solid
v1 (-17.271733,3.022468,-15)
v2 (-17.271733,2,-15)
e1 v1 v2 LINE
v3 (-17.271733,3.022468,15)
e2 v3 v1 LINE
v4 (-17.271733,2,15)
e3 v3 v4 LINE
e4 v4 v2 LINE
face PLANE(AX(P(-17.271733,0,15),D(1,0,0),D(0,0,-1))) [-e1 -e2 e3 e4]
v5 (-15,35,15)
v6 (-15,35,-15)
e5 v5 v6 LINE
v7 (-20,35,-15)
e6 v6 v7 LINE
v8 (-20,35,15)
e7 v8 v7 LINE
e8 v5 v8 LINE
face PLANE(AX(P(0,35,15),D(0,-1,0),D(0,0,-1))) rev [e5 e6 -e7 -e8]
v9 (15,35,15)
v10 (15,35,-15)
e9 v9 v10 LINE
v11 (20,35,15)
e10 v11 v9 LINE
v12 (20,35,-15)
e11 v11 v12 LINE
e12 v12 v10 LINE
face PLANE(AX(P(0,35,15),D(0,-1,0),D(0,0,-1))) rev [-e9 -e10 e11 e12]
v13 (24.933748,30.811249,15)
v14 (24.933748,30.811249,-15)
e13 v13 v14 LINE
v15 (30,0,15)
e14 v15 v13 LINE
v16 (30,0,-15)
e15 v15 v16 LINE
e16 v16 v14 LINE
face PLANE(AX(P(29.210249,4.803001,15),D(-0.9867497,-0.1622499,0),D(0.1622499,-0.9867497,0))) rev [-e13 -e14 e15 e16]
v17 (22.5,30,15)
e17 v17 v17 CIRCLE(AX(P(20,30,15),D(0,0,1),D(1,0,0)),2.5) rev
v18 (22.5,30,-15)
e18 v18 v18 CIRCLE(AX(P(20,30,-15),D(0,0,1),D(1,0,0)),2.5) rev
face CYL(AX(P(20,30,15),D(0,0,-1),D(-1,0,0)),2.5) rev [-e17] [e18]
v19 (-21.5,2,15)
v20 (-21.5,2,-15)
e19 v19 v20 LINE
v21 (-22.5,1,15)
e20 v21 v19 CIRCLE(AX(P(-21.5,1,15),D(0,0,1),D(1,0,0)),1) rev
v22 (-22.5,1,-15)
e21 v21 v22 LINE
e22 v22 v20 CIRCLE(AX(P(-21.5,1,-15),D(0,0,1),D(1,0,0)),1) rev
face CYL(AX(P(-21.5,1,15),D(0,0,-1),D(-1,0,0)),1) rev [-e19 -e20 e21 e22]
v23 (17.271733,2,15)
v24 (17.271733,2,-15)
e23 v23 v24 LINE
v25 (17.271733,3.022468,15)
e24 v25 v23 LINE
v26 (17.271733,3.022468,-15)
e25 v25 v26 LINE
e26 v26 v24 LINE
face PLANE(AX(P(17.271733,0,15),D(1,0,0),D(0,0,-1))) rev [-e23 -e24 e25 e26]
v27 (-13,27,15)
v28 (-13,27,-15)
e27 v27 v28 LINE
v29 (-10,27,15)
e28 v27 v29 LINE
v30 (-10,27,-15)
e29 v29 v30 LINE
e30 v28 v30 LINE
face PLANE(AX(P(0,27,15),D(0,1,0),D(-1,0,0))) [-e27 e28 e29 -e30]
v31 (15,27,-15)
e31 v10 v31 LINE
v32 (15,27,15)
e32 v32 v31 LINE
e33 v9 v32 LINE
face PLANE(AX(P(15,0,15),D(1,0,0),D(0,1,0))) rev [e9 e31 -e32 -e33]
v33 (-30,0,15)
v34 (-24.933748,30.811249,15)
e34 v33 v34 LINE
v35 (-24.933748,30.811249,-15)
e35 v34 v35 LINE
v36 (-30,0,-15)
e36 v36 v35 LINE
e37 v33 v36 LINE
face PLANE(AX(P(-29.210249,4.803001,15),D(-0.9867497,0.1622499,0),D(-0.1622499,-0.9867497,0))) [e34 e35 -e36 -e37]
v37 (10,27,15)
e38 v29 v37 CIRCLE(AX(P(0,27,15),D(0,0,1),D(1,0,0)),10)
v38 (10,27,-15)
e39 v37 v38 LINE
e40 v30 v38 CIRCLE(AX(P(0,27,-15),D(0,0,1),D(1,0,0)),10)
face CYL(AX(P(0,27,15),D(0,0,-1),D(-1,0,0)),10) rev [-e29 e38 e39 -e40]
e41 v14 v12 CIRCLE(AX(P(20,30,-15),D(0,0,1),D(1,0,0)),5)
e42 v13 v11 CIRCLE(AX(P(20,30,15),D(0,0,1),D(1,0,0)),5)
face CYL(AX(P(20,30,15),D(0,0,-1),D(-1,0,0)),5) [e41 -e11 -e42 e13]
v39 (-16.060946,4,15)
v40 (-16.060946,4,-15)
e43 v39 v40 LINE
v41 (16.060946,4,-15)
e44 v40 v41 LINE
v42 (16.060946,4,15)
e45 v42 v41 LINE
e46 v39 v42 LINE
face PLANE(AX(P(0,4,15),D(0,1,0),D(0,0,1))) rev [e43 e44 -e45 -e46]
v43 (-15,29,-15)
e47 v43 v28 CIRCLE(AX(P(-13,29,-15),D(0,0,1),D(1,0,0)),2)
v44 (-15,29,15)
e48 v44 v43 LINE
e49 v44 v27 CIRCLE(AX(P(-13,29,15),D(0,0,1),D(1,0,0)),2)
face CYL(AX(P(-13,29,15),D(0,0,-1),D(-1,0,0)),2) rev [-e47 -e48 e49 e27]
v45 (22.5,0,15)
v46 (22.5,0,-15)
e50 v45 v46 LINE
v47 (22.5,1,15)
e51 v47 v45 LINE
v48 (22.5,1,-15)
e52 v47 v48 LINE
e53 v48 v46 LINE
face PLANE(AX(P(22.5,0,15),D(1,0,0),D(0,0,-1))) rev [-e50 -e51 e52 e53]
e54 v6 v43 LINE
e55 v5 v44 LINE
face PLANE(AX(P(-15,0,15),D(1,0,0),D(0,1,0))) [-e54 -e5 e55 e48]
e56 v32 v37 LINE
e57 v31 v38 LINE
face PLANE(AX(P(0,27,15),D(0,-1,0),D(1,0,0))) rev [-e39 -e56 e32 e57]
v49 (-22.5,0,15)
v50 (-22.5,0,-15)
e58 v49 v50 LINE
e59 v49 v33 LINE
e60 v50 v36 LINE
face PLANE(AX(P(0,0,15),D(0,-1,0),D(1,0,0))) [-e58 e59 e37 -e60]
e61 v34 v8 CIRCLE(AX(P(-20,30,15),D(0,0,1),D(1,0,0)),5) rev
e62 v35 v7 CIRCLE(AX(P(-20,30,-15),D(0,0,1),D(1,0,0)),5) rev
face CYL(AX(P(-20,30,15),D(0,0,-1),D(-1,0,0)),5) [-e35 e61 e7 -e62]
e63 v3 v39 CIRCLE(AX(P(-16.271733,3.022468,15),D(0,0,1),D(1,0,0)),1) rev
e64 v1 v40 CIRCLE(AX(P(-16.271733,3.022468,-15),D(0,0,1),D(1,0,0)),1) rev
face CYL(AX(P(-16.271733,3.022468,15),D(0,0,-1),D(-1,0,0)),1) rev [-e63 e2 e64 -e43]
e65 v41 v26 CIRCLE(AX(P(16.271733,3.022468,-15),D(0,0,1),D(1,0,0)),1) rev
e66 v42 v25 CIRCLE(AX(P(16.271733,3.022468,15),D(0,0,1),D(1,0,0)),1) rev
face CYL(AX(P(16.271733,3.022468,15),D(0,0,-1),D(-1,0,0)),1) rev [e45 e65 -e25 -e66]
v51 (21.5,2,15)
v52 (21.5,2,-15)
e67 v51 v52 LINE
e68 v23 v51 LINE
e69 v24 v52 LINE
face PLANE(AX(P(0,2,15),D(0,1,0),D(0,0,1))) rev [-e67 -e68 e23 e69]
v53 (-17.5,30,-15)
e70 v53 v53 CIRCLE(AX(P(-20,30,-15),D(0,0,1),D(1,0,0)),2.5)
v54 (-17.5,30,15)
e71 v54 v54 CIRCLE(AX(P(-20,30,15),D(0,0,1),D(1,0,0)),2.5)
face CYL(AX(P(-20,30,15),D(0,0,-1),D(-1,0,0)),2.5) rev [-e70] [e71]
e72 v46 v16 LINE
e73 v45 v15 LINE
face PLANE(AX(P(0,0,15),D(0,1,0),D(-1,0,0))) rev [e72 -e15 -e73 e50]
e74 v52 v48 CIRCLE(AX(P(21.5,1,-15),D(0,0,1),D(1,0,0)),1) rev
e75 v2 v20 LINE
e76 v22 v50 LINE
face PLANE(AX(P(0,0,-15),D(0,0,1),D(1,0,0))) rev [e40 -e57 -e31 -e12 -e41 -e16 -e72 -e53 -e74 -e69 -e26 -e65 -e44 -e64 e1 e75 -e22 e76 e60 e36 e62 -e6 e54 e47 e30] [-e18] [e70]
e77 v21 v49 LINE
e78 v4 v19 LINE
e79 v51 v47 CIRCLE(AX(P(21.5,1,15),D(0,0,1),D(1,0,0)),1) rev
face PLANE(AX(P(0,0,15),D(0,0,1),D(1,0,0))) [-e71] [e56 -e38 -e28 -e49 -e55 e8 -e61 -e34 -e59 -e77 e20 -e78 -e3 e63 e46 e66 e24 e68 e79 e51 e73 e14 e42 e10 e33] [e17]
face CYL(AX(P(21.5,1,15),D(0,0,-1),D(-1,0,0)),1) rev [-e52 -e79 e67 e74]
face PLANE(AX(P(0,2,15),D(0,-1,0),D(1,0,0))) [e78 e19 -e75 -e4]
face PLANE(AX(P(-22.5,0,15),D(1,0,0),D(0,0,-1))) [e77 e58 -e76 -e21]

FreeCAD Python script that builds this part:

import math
import FreeCAD as App
import Part
import Sketcher

doc = App.newDocument("Part")
body = doc.addObject("PartDesign::Body", "Body")

# Sketch on XY plane
sketch1 = doc.addObject("Sketcher::SketchObject", "Sketch")
body.addObject(sketch1)
sketch1.AttachmentSupport = (doc.XY_Plane, [""])
sketch1.MapMode = "FlatFace"
sketch1.addGeometry([
    Part.ArcOfCircle(Part.Circle(App.Vector(16.271733, 3.022468, 0), App.Vector(0, 0, 1), 1), math.radians(0), math.radians(102.168484)),  # 0
    Part.LineSegment(App.Vector(17.271733, 3.022468, 0), App.Vector(17.271733, 2, 0)),  # 1
    Part.LineSegment(App.Vector(17.271733, 2, 0), App.Vector(21.5, 2, 0)),  # 2
    Part.ArcOfCircle(Part.Circle(App.Vector(21.5, 1, 0), App.Vector(0, 0, 1), 1), math.radians(0), math.radians(90)),  # 3
    Part.LineSegment(App.Vector(22.5, 1, 0), App.Vector(22.5, 0, 0)),  # 4
    Part.LineSegment(App.Vector(22.5, 0, 0), App.Vector(30, 0, 0)),  # 5
    Part.LineSegment(App.Vector(30, 0, 0), App.Vector(24.933748, 30.811249, 0)),  # 6
    Part.ArcOfCircle(Part.Circle(App.Vector(20, 30, 0), App.Vector(0, 0, 1), 5), math.radians(9.337513), math.radians(90)),  # 7
    Part.LineSegment(App.Vector(20, 35, 0), App.Vector(15, 35, 0)),  # 8
    Part.LineSegment(App.Vector(15, 35, 0), App.Vector(15, 27, 0)),  # 9
    Part.LineSegment(App.Vector(15, 27, 0), App.Vector(10, 27, 0)),  # 10
    Part.ArcOfCircle(Part.Circle(App.Vector(0, 27, 0), App.Vector(0, 0, 1), 10), math.radians(180), math.radians(360)),  # 11
    Part.LineSegment(App.Vector(-10, 27, 0), App.Vector(-13, 27, 0)),  # 12
    Part.ArcOfCircle(Part.Circle(App.Vector(-13, 29, 0), App.Vector(0, 0, 1), 2), math.radians(-180), math.radians(-90)),  # 13
    Part.LineSegment(App.Vector(-15, 29, 0), App.Vector(-15, 35, 0)),  # 14
    Part.LineSegment(App.Vector(-15, 35, 0), App.Vector(-20, 35, 0)),  # 15
    Part.ArcOfCircle(Part.Circle(App.Vector(-20, 30, 0), App.Vector(0, 0, 1), 5), math.radians(90), math.radians(170.662487)),  # 16
    Part.LineSegment(App.Vector(-24.933748, 30.811249, 0), App.Vector(-30, 0, 0)),  # 17
    Part.LineSegment(App.Vector(-30, 0, 0), App.Vector(-22.5, 0, 0)),  # 18
    Part.LineSegment(App.Vector(-22.5, 0, 0), App.Vector(-22.5, 1, 0)),  # 19
    Part.ArcOfCircle(Part.Circle(App.Vector(-21.5, 1, 0), App.Vector(0, 0, 1), 1), math.radians(90), math.radians(180)),  # 20
    Part.LineSegment(App.Vector(-21.5, 2, 0), App.Vector(-17.271733, 2, 0)),  # 21
    Part.LineSegment(App.Vector(-17.271733, 2, 0), App.Vector(-17.271733, 3.022468, 0)),  # 22
    Part.ArcOfCircle(Part.Circle(App.Vector(-16.271733, 3.022468, 0), App.Vector(0, 0, 1), 1), math.radians(77.831516), math.radians(180)),  # 23
    Part.LineSegment(App.Vector(-16.060946, 4, 0), App.Vector(16.060946, 4, 0)),  # 24
    Part.Circle(App.Vector(-20, 30, 0), App.Vector(0, 0, 1), 2.5),  # 25
    Part.Circle(App.Vector(20, 30, 0), App.Vector(0, 0, 1), 2.5),  # 26
], False)
sketch1.addConstraint([
    Sketcher.Constraint("Tangent", 0, 1, 1, 1),
    Sketcher.Constraint("Coincident", 1, 2, 2, 1),
    Sketcher.Constraint("Tangent", 2, 2, 3, 2),
    Sketcher.Constraint("Tangent", 3, 1, 4, 1),
    Sketcher.Constraint("Coincident", 4, 2, 5, 1),
    Sketcher.Constraint("Coincident", 5, 2, 6, 1),
    Sketcher.Constraint("Tangent", 6, 2, 7, 1),
    Sketcher.Constraint("Tangent", 7, 2, 8, 1),
    Sketcher.Constraint("Coincident", 8, 2, 9, 1),
    Sketcher.Constraint("Coincident", 9, 2, 10, 1),
    Sketcher.Constraint("Coincident", 10, 2, 11, 2),
    Sketcher.Constraint("Coincident", 11, 1, 12, 1),
    Sketcher.Constraint("Tangent", 12, 2, 13, 2),
    Sketcher.Constraint("Tangent", 13, 1, 14, 1),
    Sketcher.Constraint("Coincident", 14, 2, 15, 1),
    Sketcher.Constraint("Tangent", 15, 2, 16, 1),
    Sketcher.Constraint("Tangent", 16, 2, 17, 1),
    Sketcher.Constraint("Coincident", 17, 2, 18, 1),
    Sketcher.Constraint("Coincident", 18, 2, 19, 1),
    Sketcher.Constraint("Tangent", 19, 2, 20, 2),
    Sketcher.Constraint("Tangent", 20, 1, 21, 1),
    Sketcher.Constraint("Coincident", 21, 2, 22, 1),
    Sketcher.Constraint("Tangent", 22, 2, 23, 2),
    Sketcher.Constraint("Coincident", 23, 1, 24, 1),
    Sketcher.Constraint("Coincident", 24, 2, 0, 2),
    Sketcher.Constraint("Vertical", 1),
    Sketcher.Constraint("Horizontal", 2),
    Sketcher.Constraint("Vertical", 4),
    Sketcher.Constraint("Horizontal", 5),
    Sketcher.Constraint("Horizontal", 8),
    Sketcher.Constraint("Vertical", 9),
    Sketcher.Constraint("Horizontal", 10),
    Sketcher.Constraint("Horizontal", 12),
    Sketcher.Constraint("Vertical", 14),
    Sketcher.Constraint("Horizontal", 15),
    Sketcher.Constraint("Horizontal", 18),
    Sketcher.Constraint("Vertical", 19),
    Sketcher.Constraint("Horizontal", 21),
    Sketcher.Constraint("Vertical", 22),
    Sketcher.Constraint("Horizontal", 24),
    Sketcher.Constraint("Coincident", 25, 3, 16, 3),
    Sketcher.Constraint("Coincident", 26, 3, 7, 3),
    Sketcher.Constraint("Equal", 0, 3),
    Sketcher.Constraint("Equal", 7, 16),
    Sketcher.Constraint("Equal", 3, 20),
    Sketcher.Constraint("Equal", 20, 23),
    Sketcher.Constraint("Equal", 25, 26),
    Sketcher.Constraint("Symmetric", 5, 2, 17, 2, -1, 1),
    Sketcher.Constraint("Symmetric", 7, 3, 16, 3, -2),
    Sketcher.Constraint("Symmetric", 3, 3, 20, 3, -2),
    Sketcher.Constraint("Symmetric", 0, 3, 23, 3, -2),
    Sketcher.Constraint("Symmetric", 10, 2, 11, 1, -2),
    Sketcher.Constraint("PointOnObject", 4, 2, -1),
    Sketcher.Constraint("Horizontal", 11, 3, 9, 2),
    Sketcher.Constraint("Equal", 8, 10),
    Sketcher.Constraint("Equal", 10, 15),
    Sketcher.Constraint("Diameter", 25, 5.0),
    Sketcher.Constraint("Radius", 0, 1.0),
    Sketcher.Constraint("Radius", 7, 5.0),
    Sketcher.Constraint("Radius", 11, 10.0),
    Sketcher.Constraint("Radius", 13, 2.0),
    Sketcher.Constraint("DistanceX", 8, 2, 8, 1, 5.0),
    Sketcher.Constraint("DistanceY", 4, 2, 4, 1, 1.0),
    Sketcher.Constraint("DistanceY", 9, 2, 9, 1, 8.0),
    Sketcher.Constraint("DistanceX", 5, 1, 5, 2, 7.5),
    Sketcher.Constraint("DistanceY", -1, 1, 7, 3, 30.0),
    Sketcher.Constraint("DistanceX", -1, 1, 5, 2, 30.0),
    Sketcher.Constraint("DistanceY", -1, 1, 23, 1, 4.0),
    Sketcher.Constraint("DistanceY", 1, 2, 1, 1, 1.022468),
    Sketcher.Constraint("DistanceX", 2, 1, 2, 2, 4.228267),
])
pad1 = doc.addObject("PartDesign::Pad", "Pad")
body.addObject(pad1)
pad1.Profile = sketch1
pad1.Length = 30
pad1.Midplane = True

doc.recompute()
